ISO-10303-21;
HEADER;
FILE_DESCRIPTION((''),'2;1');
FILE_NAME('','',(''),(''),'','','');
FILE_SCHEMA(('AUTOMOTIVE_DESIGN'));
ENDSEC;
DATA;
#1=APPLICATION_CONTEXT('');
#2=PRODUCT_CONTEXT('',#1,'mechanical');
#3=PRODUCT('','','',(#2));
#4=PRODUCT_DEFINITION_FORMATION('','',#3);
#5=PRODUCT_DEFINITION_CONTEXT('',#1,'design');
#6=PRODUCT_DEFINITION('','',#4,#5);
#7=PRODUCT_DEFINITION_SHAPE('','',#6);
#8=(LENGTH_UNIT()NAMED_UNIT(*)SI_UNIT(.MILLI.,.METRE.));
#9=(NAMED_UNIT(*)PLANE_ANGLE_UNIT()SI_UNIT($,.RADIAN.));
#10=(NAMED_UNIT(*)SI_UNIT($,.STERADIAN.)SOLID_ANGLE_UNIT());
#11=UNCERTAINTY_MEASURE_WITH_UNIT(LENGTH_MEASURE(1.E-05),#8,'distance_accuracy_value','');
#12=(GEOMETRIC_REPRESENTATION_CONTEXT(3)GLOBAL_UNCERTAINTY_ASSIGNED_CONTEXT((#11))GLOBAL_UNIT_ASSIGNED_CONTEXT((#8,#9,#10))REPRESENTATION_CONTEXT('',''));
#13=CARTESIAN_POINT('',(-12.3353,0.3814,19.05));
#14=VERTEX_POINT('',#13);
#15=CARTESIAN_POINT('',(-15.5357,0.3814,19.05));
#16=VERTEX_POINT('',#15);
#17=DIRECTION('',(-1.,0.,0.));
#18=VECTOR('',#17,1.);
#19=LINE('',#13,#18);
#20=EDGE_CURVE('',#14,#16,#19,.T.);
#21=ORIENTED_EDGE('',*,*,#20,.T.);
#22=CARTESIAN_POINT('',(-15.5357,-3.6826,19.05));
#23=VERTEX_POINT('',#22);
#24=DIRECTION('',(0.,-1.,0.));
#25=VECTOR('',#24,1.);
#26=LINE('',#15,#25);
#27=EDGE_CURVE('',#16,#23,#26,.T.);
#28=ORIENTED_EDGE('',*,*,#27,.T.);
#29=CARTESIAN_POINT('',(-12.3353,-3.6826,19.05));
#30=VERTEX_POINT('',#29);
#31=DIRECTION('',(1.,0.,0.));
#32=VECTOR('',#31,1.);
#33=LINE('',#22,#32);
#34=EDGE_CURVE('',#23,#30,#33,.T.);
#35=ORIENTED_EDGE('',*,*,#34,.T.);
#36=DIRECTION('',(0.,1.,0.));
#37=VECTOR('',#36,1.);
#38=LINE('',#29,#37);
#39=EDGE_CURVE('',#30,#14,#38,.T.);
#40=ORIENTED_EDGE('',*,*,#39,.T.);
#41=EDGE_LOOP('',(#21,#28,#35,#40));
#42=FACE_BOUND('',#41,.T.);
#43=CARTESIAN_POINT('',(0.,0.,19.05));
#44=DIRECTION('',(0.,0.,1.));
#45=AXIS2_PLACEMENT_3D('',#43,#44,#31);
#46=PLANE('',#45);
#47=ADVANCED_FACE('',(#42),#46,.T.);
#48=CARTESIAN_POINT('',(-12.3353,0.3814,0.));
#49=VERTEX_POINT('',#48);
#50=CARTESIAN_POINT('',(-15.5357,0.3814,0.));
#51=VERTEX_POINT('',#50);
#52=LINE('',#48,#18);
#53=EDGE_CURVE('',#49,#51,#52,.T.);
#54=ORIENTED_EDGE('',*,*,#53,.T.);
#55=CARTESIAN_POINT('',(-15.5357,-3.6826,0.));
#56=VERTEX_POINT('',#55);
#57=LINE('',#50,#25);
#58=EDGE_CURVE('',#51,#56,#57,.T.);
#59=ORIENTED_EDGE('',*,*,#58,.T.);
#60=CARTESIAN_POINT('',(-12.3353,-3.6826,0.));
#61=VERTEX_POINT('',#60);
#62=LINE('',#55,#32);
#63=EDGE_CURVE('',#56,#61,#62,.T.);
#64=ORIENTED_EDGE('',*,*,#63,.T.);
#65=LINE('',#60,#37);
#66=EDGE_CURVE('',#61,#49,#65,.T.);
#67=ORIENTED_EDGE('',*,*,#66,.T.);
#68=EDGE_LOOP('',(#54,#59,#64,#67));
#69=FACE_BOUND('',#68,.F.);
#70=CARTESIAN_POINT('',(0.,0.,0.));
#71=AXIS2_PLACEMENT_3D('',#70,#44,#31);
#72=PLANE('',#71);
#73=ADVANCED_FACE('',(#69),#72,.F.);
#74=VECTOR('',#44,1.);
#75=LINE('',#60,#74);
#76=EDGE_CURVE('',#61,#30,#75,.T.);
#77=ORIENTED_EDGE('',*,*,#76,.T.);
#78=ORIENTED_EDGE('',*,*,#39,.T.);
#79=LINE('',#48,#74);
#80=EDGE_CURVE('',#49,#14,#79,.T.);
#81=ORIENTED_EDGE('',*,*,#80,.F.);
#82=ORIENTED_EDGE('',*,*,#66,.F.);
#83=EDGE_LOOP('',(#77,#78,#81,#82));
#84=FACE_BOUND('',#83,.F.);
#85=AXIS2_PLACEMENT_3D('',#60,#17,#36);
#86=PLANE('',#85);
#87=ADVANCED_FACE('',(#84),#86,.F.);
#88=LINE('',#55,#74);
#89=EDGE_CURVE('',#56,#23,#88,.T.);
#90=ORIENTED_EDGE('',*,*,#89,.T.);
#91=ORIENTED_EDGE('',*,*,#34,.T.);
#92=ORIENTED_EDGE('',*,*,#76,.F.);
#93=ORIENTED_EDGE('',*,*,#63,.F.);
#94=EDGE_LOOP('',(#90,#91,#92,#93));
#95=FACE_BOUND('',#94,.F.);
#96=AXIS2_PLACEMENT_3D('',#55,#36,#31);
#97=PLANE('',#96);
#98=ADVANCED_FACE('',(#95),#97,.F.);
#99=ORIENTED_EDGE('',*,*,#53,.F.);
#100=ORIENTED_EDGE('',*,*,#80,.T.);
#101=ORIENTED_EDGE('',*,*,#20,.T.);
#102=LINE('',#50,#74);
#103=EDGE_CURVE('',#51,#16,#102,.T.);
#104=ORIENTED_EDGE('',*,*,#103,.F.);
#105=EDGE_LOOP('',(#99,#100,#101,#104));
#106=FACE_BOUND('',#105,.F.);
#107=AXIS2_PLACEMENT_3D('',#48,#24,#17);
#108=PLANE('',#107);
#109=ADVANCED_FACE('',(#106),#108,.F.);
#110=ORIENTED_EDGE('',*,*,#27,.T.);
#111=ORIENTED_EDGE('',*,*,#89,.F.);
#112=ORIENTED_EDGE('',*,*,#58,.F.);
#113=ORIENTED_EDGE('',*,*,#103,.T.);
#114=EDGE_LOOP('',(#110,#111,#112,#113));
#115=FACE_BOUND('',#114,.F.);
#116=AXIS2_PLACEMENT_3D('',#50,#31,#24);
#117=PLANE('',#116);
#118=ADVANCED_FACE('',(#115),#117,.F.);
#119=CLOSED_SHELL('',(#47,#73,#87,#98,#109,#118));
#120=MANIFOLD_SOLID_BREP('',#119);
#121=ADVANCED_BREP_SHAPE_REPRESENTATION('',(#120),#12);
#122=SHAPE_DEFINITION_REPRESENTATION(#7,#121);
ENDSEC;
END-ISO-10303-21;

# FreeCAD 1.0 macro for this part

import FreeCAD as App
import Part
import Sketcher
Q = App.Units.Quantity


def add_polygon(sketch, points):
    """Adds a closed chain of lines whose ends are joined by coincident constraints."""
    first, n = sketch.GeometryCount, len(points)
    for a, b in zip(points, points[1:] + points[:1]):
        sketch.addGeometry(Part.LineSegment(App.Vector(*a, 0), App.Vector(*b, 0)), False)
    for i in range(n):
        sketch.addConstraint(Sketcher.Constraint("Coincident", first + i, 2, first + (i + 1) % n, 1))

doc = App.newDocument("Part")
body = doc.addObject("PartDesign::Body", "Body")

# Sketch on XY plane
sketch1 = body.newObject("Sketcher::SketchObject", "Sketch")
sketch1.AttachmentSupport = (doc.getObject("XY_Plane"), [""])
sketch1.MapMode = "FlatFace"
add_polygon(sketch1, [(-15.5, 0.4), (-15.5, -3.7), (-12.3, -3.7), (-12.3, 0.4)])  # lines 0-3
sketch1.addConstraint(Sketcher.Constraint("Vertical", 0))
sketch1.addConstraint(Sketcher.Constraint("Horizontal", 1))
sketch1.addConstraint(Sketcher.Constraint("Vertical", 2))
sketch1.addConstraint(Sketcher.Constraint("Horizontal", 3))
sketch1.addConstraint(Sketcher.Constraint("DistanceY", 0, 2, 0, 1, Q("0.16 in")))
sketch1.addConstraint(Sketcher.Constraint("DistanceX", 1, 1, 1, 2, Q("0.126 in")))
sketch1.addConstraint(Sketcher.Constraint("DistanceX", 0, 2, -1, 1, Q("15.5357 mm")))
sketch1.addConstraint(Sketcher.Constraint("DistanceY", 0, 2, -1, 1, Q("3.6826 mm")))
pad1 = body.newObject("PartDesign::Pad", "Pad")
pad1.Profile = sketch1
pad1.Length = Q("0.75 in")

doc.recompute()
